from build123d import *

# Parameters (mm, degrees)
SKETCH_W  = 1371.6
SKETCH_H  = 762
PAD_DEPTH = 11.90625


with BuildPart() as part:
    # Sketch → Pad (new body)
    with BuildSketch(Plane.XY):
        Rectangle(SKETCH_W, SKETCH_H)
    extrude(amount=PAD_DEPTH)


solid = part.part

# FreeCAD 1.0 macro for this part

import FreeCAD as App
import Part
import Sketcher

V = App.Vector
Q = App.Units.Quantity


def add_polygon(sketch, points):
    """Adds a closed chain of lines whose ends are joined by coincident constraints."""
    first, n = sketch.GeometryCount, len(points)
    for a, b in zip(points, points[1:] + points[:1]):
        sketch.addGeometry(Part.LineSegment(App.Vector(*a, 0), App.Vector(*b, 0)), False)
    for i in range(n):
        sketch.addConstraint(Sketcher.Constraint("Coincident", first + i, 2, first + (i + 1) % n, 1))

doc = App.newDocument("Part")
params = doc.addObject("Spreadsheet::Sheet", "Params")
for row, (alias, value) in enumerate([
    ("sketch1_width", "54 in"),
    ("sketch1_height", "30 in"),
    ("pad1_length", "0.46875 in"),
], start=1):
    params.set(f"A{row}", alias)
    params.set(f"B{row}", "=" + value)
    params.setAlias(f"B{row}", alias)

body = doc.addObject("PartDesign::Body", "Body")

sketch1 = body.newObject("Sketcher::SketchObject", "Sketch")
sketch1.AttachmentSupport = (doc.getObject("XY_Plane"), [""])
sketch1.MapMode = "FlatFace"
add_polygon(sketch1, [(-686, 381), (-686, -381), (686, -381), (686, 381)])
sketch1.addConstraint(Sketcher.Constraint("Vertical", 0))
sketch1.addConstraint(Sketcher.Constraint("Horizontal", 1))
sketch1.addConstraint(Sketcher.Constraint("Vertical", 2))
sketch1.addConstraint(Sketcher.Constraint("Horizontal", 3))
sketch1.addConstraint(Sketcher.Constraint("Symmetric", 0, 2, 2, 2, -1, 1))
sketch1.addConstraint(Sketcher.Constraint("DistanceX", 1, 1, 1, 2, Q("54 in")))
sketch1.addConstraint(Sketcher.Constraint("DistanceY", 0, 2, 0, 1, Q("30 in")))
sketch1.setExpression("Constraints[9]", "Params.sketch1_width")
sketch1.setExpression("Constraints[10]", "Params.sketch1_height")
pad1 = body.newObject("PartDesign::Pad", "Pad")
pad1.Profile = sketch1
pad1.setExpression("Length", "Params.pad1_length")

doc.recompute()
